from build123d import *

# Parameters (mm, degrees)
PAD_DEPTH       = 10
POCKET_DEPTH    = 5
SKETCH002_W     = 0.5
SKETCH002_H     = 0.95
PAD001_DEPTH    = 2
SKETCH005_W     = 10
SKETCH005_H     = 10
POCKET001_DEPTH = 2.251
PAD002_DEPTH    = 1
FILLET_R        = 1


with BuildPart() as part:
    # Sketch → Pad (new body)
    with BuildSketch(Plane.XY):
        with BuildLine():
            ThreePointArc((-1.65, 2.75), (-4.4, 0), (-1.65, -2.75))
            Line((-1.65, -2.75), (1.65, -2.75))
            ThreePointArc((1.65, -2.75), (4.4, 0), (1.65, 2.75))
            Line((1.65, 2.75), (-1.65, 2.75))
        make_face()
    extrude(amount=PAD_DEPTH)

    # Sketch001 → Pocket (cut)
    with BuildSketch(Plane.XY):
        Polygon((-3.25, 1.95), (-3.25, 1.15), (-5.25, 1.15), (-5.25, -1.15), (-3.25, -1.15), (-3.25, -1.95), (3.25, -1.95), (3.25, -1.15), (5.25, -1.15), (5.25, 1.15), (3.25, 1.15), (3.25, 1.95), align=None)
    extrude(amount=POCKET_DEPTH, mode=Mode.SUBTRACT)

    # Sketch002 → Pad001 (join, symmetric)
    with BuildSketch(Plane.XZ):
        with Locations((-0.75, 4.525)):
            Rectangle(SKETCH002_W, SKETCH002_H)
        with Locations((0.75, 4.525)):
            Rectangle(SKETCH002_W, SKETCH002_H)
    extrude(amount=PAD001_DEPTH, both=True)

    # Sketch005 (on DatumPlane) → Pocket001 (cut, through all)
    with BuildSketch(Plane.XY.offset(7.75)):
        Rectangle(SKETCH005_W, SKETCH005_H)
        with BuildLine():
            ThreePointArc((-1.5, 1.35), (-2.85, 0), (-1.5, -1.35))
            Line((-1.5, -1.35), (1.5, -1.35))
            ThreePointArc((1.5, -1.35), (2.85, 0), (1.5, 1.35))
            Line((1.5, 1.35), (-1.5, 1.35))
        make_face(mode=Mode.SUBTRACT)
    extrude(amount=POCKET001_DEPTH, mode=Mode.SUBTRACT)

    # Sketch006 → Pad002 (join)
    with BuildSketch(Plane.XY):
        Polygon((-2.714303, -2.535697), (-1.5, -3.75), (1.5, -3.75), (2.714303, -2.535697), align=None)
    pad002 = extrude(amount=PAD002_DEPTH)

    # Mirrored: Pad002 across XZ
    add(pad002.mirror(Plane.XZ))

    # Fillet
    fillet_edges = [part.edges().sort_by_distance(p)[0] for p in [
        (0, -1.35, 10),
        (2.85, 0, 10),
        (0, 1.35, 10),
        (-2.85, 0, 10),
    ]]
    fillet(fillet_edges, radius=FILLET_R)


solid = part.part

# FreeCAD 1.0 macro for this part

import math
import FreeCAD as App
import Part
import Sketcher
Q = App.Units.Quantity


def edges_at(feature, points):
    """Names of the edges that pass closest to the given points."""
    edges = feature.Shape.Edges
    near = lambda p: min(range(len(edges)), key=lambda i: edges[i].distToShape(Part.Vertex(*p))[0])
    return sorted({f"Edge{near(p) + 1}" for p in points})


def add_polygon(sketch, points):
    """Adds a closed chain of lines whose ends are joined by coincident constraints."""
    first, n = sketch.GeometryCount, len(points)
    for a, b in zip(points, points[1:] + points[:1]):
        sketch.addGeometry(Part.LineSegment(App.Vector(*a, 0), App.Vector(*b, 0)), False)
    for i in range(n):
        sketch.addConstraint(Sketcher.Constraint("Coincident", first + i, 2, first + (i + 1) % n, 1))

doc = App.newDocument("Part")
body = doc.addObject("PartDesign::Body", "Body")

# Sketch on XY plane
sketch1 = body.newObject("Sketcher::SketchObject", "Sketch")
sketch1.AttachmentSupport = (doc.getObject("XY_Plane"), [""])
sketch1.MapMode = "FlatFace"
sketch1.addGeometry(Part.ArcOfCircle(Part.Circle(App.Vector(-1.6, 0, 0), App.Vector(0, 0, 1), 2.8), math.radians(90), math.radians(270)), False)
sketch1.addGeometry(Part.LineSegment(App.Vector(-1.6, -2.8, 0), App.Vector(1.6, -2.8, 0)), False)
sketch1.addGeometry(Part.ArcOfCircle(Part.Circle(App.Vector(1.6, 0, 0), App.Vector(0, 0, 1), 2.8), math.radians(-90), math.radians(90)), False)
sketch1.addGeometry(Part.LineSegment(App.Vector(1.6, 2.8, 0), App.Vector(-1.6, 2.8, 0)), False)
sketch1.addConstraint(Sketcher.Constraint("Tangent", 0, 2, 1, 1))
sketch1.addConstraint(Sketcher.Constraint("Tangent", 1, 2, 2, 1))
sketch1.addConstraint(Sketcher.Constraint("Tangent", 2, 2, 3, 1))
sketch1.addConstraint(Sketcher.Constraint("Tangent", 3, 2, 0, 1))
sketch1.addConstraint(Sketcher.Constraint("Horizontal", 1))
sketch1.addConstraint(Sketcher.Constraint("Horizontal", 3))
sketch1.addConstraint(Sketcher.Constraint("Symmetric", 0, 3, 2, 3, -1, 1))
sketch1.addConstraint(Sketcher.Constraint("Radius", 0, Q("2.75 mm")))
sketch1.addConstraint(Sketcher.Constraint("DistanceX", 1, 1, 1, 2, Q("3.3 mm")))
pad1 = body.newObject("PartDesign::Pad", "Pad")
pad1.Profile = sketch1
pad1.Length = 10

# Sketch on XY plane
sketch2 = body.newObject("Sketcher::SketchObject", "Sketch001")
sketch2.AttachmentSupport = (doc.getObject("XY_Plane"), [""])
sketch2.MapMode = "FlatFace"
add_polygon(sketch2, [(-3.2, 1.9), (-3.2, 1.1), (-5.2, 1.1), (-5.2, -1.1), (-3.2, -1.1), (-3.2, -1.9), (3.2, -1.9), (3.2, -1.1), (5.2, -1.1), (5.2, 1.1), (3.2, 1.1), (3.2, 1.9)])  # lines 0-11
sketch2.addConstraint(Sketcher.Constraint("Vertical", 0))
sketch2.addConstraint(Sketcher.Constraint("Horizontal", 1))
sketch2.addConstraint(Sketcher.Constraint("Vertical", 2))
sketch2.addConstraint(Sketcher.Constraint("Horizontal", 3))
sketch2.addConstraint(Sketcher.Constraint("Vertical", 4))
sketch2.addConstraint(Sketcher.Constraint("Horizontal", 5))
sketch2.addConstraint(Sketcher.Constraint("Vertical", 6))
sketch2.addConstraint(Sketcher.Constraint("Horizontal", 7))
sketch2.addConstraint(Sketcher.Constraint("Vertical", 8))
sketch2.addConstraint(Sketcher.Constraint("Horizontal", 9))
sketch2.addConstraint(Sketcher.Constraint("Vertical", 10))
sketch2.addConstraint(Sketcher.Constraint("Horizontal", 11))
sketch2.addConstraint(Sketcher.Constraint("Symmetric", 0, 2, 6, 2, -1, 1))
sketch2.addConstraint(Sketcher.Constraint("Symmetric", 2, 2, 8, 2, -1, 1))
sketch2.addConstraint(Sketcher.Constraint("Symmetric", 4, 2, 10, 2, -1, 1))
sketch2.addConstraint(Sketcher.Constraint("Symmetric", 3, 2, 6, 2, -2))
sketch2.addConstraint(Sketcher.Constraint("DistanceX", 1, 2, 1, 1, Q("2 mm")))
sketch2.addConstraint(Sketcher.Constraint("DistanceX", 5, 1, 5, 2, Q("6.5 mm")))
sketch2.addConstraint(Sketcher.Constraint("DistanceY", 0, 2, 0, 1, Q("0.8 mm")))
sketch2.addConstraint(Sketcher.Constraint("DistanceY", 2, 2, 2, 1, Q("2.3 mm")))
pocket1 = body.newObject("PartDesign::Pocket", "Pocket")
pocket1.Profile = sketch2
pocket1.Length = 5
pocket1.Reversed = True

# Sketch on XZ plane
sketch3 = body.newObject("Sketcher::SketchObject", "Sketch002")
sketch3.AttachmentSupport = (doc.getObject("XZ_Plane"), [""])
sketch3.MapMode = "FlatFace"
add_polygon(sketch3, [(-1, 5), (-1, 4), (-0.5, 4), (-0.5, 5)])  # lines 0-3
add_polygon(sketch3, [(0.5, 5), (0.5, 4), (1, 4), (1, 5)])  # lines 4-7
sketch3.addConstraint(Sketcher.Constraint("Vertical", 0))
sketch3.addConstraint(Sketcher.Constraint("Horizontal", 1))
sketch3.addConstraint(Sketcher.Constraint("Vertical", 2))
sketch3.addConstraint(Sketcher.Constraint("Horizontal", 3))
sketch3.addConstraint(Sketcher.Constraint("Vertical", 4))
sketch3.addConstraint(Sketcher.Constraint("Horizontal", 5))
sketch3.addConstraint(Sketcher.Constraint("Vertical", 6))
sketch3.addConstraint(Sketcher.Constraint("Horizontal", 7))
sketch3.addConstraint(Sketcher.Constraint("Symmetric", 1, 2, 4, 2, -2))
sketch3.addConstraint(Sketcher.Constraint("Symmetric", 3, 2, 6, 2, -2))
sketch3.addConstraint(Sketcher.Constraint("DistanceX", 1, 1, 1, 2, Q("0.5 mm")))
sketch3.addConstraint(Sketcher.Constraint("DistanceX", 0, 2, -1, 1, Q("1 mm")))
sketch3.addConstraint(Sketcher.Constraint("DistanceY", -1, 1, 2, 2, Q("5 mm")))
sketch3.addConstraint(Sketcher.Constraint("DistanceY", 0, 2, 0, 1, Q("0.95 mm")))
pad2 = body.newObject("PartDesign::Pad", "Pad001")
pad2.Profile = sketch3
pad2.Length = 4
pad2.Midplane = True

# Sketch on XY plane
sketch4 = body.newObject("Sketcher::SketchObject", "Sketch003")
sketch4.AttachmentSupport = (doc.getObject("XY_Plane"), [""])
sketch4.MapMode = "FlatFace"
sketch4.AttachmentOffset = App.Placement(App.Vector(0, 0, 7.75), App.Rotation())
add_polygon(sketch4, [(-5, 5), (-5, -5), (5, -5), (5, 5)])  # lines 0-3
sketch4.addGeometry(Part.ArcOfCircle(Part.Circle(App.Vector(-1.5, 0, 0), App.Vector(0, 0, 1), 1.4), math.radians(90), math.radians(270)), False)  # 4
sketch4.addGeometry(Part.LineSegment(App.Vector(-1.5, 1.4, 0), App.Vector(1.5, 1.4, 0)), False)  # 5
sketch4.addGeometry(Part.ArcOfCircle(Part.Circle(App.Vector(1.5, 0, 0), App.Vector(0, 0, 1), 1.4), math.radians(-90), math.radians(90)), False)  # 6
sketch4.addGeometry(Part.LineSegment(App.Vector(1.5, -1.4, 0), App.Vector(-1.5, -1.4, 0)), False)  # 7
sketch4.addConstraint(Sketcher.Constraint("Tangent", 4, 1, 5, 1))
sketch4.addConstraint(Sketcher.Constraint("Tangent", 5, 2, 6, 2))
sketch4.addConstraint(Sketcher.Constraint("Tangent", 6, 1, 7, 1))
sketch4.addConstraint(Sketcher.Constraint("Tangent", 7, 2, 4, 2))
sketch4.addConstraint(Sketcher.Constraint("Vertical", 0))
sketch4.addConstraint(Sketcher.Constraint("Horizontal", 1))
sketch4.addConstraint(Sketcher.Constraint("Vertical", 2))
sketch4.addConstraint(Sketcher.Constraint("Horizontal", 3))
sketch4.addConstraint(Sketcher.Constraint("Horizontal", 5))
sketch4.addConstraint(Sketcher.Constraint("Horizontal", 7))
sketch4.addConstraint(Sketcher.Constraint("Symmetric", 4, 3, 6, 3, -1, 1))
sketch4.addConstraint(Sketcher.Constraint("Symmetric", 0, 2, 2, 2, -1, 1))
sketch4.addConstraint(Sketcher.Constraint("Equal", 3, 0))
sketch4.addConstraint(Sketcher.Constraint("DistanceX", 1, 1, 1, 2, Q("10 mm")))
sketch4.addConstraint(Sketcher.Constraint("DistanceX", 5, 1, 5, 2, Q("3 mm")))
sketch4.addConstraint(Sketcher.Constraint("Radius", 4, Q("1.35 mm")))
pocket2 = body.newObject("PartDesign::Pocket", "Pocket001")
pocket2.Profile = sketch4
pocket2.Type = "ThroughAll"
pocket2.Reversed = True

# Sketch on XY plane
sketch5 = body.newObject("Sketcher::SketchObject", "Sketch004")
sketch5.AttachmentSupport = (doc.getObject("XY_Plane"), [""])
sketch5.MapMode = "FlatFace"
add_polygon(sketch5, [(-2.7, -2.5), (-1.5, -3.8), (1.5, -3.8), (2.7, -2.5)])  # lines 0-3
sketch5.addConstraint(Sketcher.Constraint("Horizontal", 1))
sketch5.addConstraint(Sketcher.Constraint("Horizontal", 3))
sketch5.addConstraint(Sketcher.Constraint("Perpendicular", 0, 2))
sketch5.addConstraint(Sketcher.Constraint("Equal", 0, 2))
sketch5.addConstraint(Sketcher.Constraint("DistanceX", 1, 1, 1, 2, Q("3 mm")))
sketch5.addConstraint(Sketcher.Constraint("DistanceX", 0, 2, -1, 1, Q("1.5 mm")))
sketch5.addConstraint(Sketcher.Constraint("DistanceY", 0, 2, -1, 1, Q("3.75 mm")))
sketch5.addConstraint(Sketcher.Constraint("DistanceX", 3, 2, 3, 1, Q("5.428606 mm")))
pad3 = body.newObject("PartDesign::Pad", "Pad002")
pad3.Profile = sketch5
pad3.Length = 1
doc.recompute()

mirrored = body.newObject("PartDesign::Mirrored", "Mirrored")
mirrored.Originals = [pad3]
mirrored.MirrorPlane = (doc.getObject("XZ_Plane"), [""])
body.Tip = mirrored
doc.recompute()

fillet = body.newObject("PartDesign::Fillet", "Fillet")
fillet.Base = (mirrored, edges_at(mirrored, [
    (0, -1.35, 10),
    (2.85, 0, 10),
    (0, 1.35, 10),
    (-2.85, 0, 10),
]))
fillet.Radius = 1

doc.recompute()
